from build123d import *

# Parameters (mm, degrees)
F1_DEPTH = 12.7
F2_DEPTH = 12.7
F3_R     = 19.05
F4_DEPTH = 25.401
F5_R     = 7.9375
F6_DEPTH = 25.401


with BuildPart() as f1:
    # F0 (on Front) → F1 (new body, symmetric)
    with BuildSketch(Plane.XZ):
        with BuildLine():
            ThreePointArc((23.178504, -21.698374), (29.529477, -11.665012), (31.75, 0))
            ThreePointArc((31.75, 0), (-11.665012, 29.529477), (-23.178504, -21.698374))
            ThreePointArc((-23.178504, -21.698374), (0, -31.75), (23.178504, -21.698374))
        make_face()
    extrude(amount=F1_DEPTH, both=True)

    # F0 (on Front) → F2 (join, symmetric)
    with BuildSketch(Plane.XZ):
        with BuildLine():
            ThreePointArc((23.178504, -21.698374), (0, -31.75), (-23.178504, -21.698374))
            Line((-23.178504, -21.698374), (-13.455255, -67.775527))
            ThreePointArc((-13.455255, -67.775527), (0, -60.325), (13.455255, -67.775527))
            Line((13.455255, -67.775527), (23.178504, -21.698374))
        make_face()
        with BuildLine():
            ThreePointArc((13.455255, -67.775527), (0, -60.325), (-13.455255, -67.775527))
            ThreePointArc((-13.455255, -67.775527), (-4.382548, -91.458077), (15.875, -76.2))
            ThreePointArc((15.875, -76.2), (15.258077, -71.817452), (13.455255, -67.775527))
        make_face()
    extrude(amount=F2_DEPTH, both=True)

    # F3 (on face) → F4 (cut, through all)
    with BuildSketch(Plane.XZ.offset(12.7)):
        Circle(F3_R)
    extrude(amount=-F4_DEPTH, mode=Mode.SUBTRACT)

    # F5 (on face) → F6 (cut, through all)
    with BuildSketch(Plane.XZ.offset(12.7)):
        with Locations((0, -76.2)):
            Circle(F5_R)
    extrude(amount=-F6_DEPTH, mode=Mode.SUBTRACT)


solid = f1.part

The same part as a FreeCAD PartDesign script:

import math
import FreeCAD as App
import Part
import Sketcher
from FreeCAD import Vector
Q = App.Units.Quantity

doc = App.newDocument("Part")
body = doc.addObject("PartDesign::Body", "Body")

# Sketch on XZ plane
sketch1 = body.newObject("Sketcher::SketchObject", "Sketch")
sketch1.AttachmentSupport = (doc.getObject("XZ_Plane"), [""])
sketch1.MapMode = "FlatFace"
sketch1.addGeometry(Part.ArcOfCircle(Part.Circle(Vector(0, 0, 0), Vector(0, 0, 1), 32), math.radians(-43), math.radians(0)), False)
sketch1.addGeometry(Part.ArcOfCircle(Part.Circle(Vector(0, 0, 0), Vector(0, 0, 1), 32), math.radians(0), math.radians(223)), False)
sketch1.addGeometry(Part.ArcOfCircle(Part.Circle(Vector(0, 0, 0), Vector(0, 0, 1), 32), math.radians(-137), math.radians(-43)), False)
sketch1.addConstraint(Sketcher.Constraint("Tangent", 0, 2, 1, 1))
sketch1.addConstraint(Sketcher.Constraint("Tangent", 1, 2, 2, 1))
sketch1.addConstraint(Sketcher.Constraint("Tangent", 2, 2, 0, 1))
sketch1.addConstraint(Sketcher.Constraint("Coincident", 0, 3, -1, 1))
sketch1.addConstraint(Sketcher.Constraint("PointOnObject", 0, 2, -1))
sketch1.addConstraint(Sketcher.Constraint("Horizontal", 1, 2, 2, 2))
sketch1.addConstraint(Sketcher.Constraint("Radius", 1, Q("1.25 in")))
sketch1.addConstraint(Sketcher.Constraint("DistanceX", 0, 3, 2, 2, Q("23.178498 mm")))
pad1 = body.newObject("PartDesign::Pad", "Pad")
pad1.Profile = sketch1
pad1.Length = Q("1 in")
pad1.Midplane = True

# Sketch on XZ plane
sketch2 = body.newObject("Sketcher::SketchObject", "Sketch001")
sketch2.AttachmentSupport = (doc.getObject("XZ_Plane"), [""])
sketch2.MapMode = "FlatFace"
sketch2.addGeometry(Part.ArcOfCircle(Part.Circle(Vector(0, 0, 0), Vector(0, 0, 1), 32), math.radians(-137), math.radians(-43)), False)
sketch2.addGeometry(Part.LineSegment(Vector(-23, -22, 0), Vector(-13, -68, 0)), False)
sketch2.addGeometry(Part.ArcOfCircle(Part.Circle(Vector(0, -76, 0), Vector(0, 0, 1), 16), math.radians(148), math.radians(360)), False)
sketch2.addGeometry(Part.ArcOfCircle(Part.Circle(Vector(0, -76, 0), Vector(0, 0, 1), 16), math.radians(0), math.radians(32)), False)
sketch2.addGeometry(Part.LineSegment(Vector(13, -68, 0), Vector(23, -22, 0)), False)
sketch2.addConstraint(Sketcher.Constraint("Coincident", 0, 1, 1, 1))
sketch2.addConstraint(Sketcher.Constraint("Coincident", 1, 2, 2, 1))
sketch2.addConstraint(Sketcher.Constraint("Tangent", 2, 2, 3, 1))
sketch2.addConstraint(Sketcher.Constraint("Coincident", 3, 2, 4, 1))
sketch2.addConstraint(Sketcher.Constraint("Coincident", 4, 2, 0, 2))
sketch2.addConstraint(Sketcher.Constraint("Coincident", 0, 3, -1, 1))
sketch2.addConstraint(Sketcher.Constraint("Symmetric", 1, 2, 3, 2, -2))
sketch2.addConstraint(Sketcher.Constraint("PointOnObject", 2, 3, -2))
sketch2.addConstraint(Sketcher.Constraint("Horizontal", 0, 1, 4, 2))
sketch2.addConstraint(Sketcher.Constraint("Radius", 0, Q("1.25 in")))
sketch2.addConstraint(Sketcher.Constraint("DistanceY", 2, 3, -1, 1, Q("3 in")))
sketch2.addConstraint(Sketcher.Constraint("DistanceY", 2, 2, -1, 1, Q("3 in")))
sketch2.addConstraint(Sketcher.Constraint("Radius", 2, Q("0.625 in")))
sketch2.addConstraint(Sketcher.Constraint("DistanceY", 3, 3, 1, 2, Q("8.42447 mm")))
sketch2.addConstraint(Sketcher.Constraint("DistanceX", 0, 1, 1, 2, Q("9.723249 mm")))
pad2 = body.newObject("PartDesign::Pad", "Pad001")
pad2.Profile = sketch2
pad2.Length = Q("1 in")
pad2.Midplane = True

# Sketch on XZ plane
sketch3 = body.newObject("Sketcher::SketchObject", "Sketch002")
sketch3.AttachmentSupport = (doc.getObject("XZ_Plane"), [""])
sketch3.MapMode = "FlatFace"
sketch3.AttachmentOffset = App.Placement(Vector(0, 0, 0.5 * 25.4), App.Rotation())
sketch3.addGeometry(Part.Circle(Vector(0, 0, 0), Vector(0, 0, 1), 19), False)
sketch3.addConstraint(Sketcher.Constraint("Coincident", 0, 3, -1, 1))
sketch3.addConstraint(Sketcher.Constraint("Diameter", 0, Q("1.5 in")))
pocket1 = body.newObject("PartDesign::Pocket", "Pocket")
pocket1.Profile = sketch3
pocket1.Type = "ThroughAll"

# Sketch on XZ plane
sketch4 = body.newObject("Sketcher::SketchObject", "Sketch003")
sketch4.AttachmentSupport = (doc.getObject("XZ_Plane"), [""])
sketch4.MapMode = "FlatFace"
sketch4.AttachmentOffset = App.Placement(Vector(0, 0, 0.5 * 25.4), App.Rotation())
sketch4.addGeometry(Part.Circle(Vector(0, -76, 0), Vector(0, 0, 1), 8), False)
sketch4.addConstraint(Sketcher.Constraint("PointOnObject", 0, 3, -2))
sketch4.addConstraint(Sketcher.Constraint("Diameter", 0, Q("0.625 in")))
sketch4.addConstraint(Sketcher.Constraint("DistanceY", 0, 3, -1, 1, Q("3 in")))
pocket2 = body.newObject("PartDesign::Pocket", "Pocket001")
pocket2.Profile = sketch4
pocket2.Type = "ThroughAll"

doc.recompute()
